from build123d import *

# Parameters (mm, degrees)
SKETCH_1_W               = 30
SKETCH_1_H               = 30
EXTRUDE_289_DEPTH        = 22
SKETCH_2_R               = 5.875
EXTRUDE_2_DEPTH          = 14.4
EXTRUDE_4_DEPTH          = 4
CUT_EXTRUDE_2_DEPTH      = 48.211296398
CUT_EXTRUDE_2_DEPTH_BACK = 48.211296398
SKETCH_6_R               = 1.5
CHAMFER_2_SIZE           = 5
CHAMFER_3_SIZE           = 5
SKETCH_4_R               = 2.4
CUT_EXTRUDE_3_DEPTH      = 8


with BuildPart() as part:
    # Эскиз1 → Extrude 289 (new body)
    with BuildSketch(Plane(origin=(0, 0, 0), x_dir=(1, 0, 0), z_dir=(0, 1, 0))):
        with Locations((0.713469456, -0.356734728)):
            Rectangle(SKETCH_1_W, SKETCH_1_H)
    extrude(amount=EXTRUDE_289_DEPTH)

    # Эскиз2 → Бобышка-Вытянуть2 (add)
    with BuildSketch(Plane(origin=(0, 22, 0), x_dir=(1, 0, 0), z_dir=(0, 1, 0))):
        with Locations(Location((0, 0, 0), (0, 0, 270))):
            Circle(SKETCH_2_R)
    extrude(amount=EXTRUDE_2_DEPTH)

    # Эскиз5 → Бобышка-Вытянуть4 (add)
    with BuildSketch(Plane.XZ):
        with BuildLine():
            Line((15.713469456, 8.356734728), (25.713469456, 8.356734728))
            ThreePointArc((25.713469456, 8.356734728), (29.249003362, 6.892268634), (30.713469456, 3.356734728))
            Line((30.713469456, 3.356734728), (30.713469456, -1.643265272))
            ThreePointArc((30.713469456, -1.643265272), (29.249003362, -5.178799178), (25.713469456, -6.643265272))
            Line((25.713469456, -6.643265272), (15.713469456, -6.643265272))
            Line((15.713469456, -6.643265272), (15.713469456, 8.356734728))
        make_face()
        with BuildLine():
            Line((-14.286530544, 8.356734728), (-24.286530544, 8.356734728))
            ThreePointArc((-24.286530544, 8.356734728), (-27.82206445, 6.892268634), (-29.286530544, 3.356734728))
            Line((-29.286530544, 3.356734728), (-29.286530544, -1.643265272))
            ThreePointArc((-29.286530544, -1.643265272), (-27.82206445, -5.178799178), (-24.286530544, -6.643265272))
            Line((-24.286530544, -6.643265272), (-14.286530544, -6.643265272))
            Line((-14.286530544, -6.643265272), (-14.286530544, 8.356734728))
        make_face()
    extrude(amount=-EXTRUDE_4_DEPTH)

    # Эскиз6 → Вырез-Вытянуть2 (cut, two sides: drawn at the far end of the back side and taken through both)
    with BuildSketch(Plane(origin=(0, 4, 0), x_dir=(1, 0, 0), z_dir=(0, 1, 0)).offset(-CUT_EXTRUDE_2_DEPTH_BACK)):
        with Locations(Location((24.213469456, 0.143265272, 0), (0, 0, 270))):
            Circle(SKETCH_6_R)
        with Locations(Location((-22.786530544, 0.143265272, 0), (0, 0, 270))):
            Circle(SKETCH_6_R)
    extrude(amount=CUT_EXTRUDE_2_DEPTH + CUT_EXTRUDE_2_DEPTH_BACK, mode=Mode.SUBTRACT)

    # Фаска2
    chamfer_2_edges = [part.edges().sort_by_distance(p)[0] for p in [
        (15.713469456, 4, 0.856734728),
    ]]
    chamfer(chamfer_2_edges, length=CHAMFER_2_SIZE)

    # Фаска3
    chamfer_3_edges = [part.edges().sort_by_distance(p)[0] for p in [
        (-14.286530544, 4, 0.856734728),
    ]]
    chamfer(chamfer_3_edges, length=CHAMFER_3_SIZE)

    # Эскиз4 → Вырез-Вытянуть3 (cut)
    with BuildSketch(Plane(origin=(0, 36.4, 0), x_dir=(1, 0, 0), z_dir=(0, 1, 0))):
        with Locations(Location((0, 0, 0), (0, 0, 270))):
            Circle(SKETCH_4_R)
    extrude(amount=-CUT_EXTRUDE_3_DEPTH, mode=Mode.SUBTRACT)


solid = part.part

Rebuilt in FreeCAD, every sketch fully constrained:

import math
import FreeCAD as App
import Part
import Sketcher
from FreeCAD import Vector


def edges_at(feature, points):
    """Names of the edges that pass closest to the given points."""
    edges = feature.Shape.Edges
    near = lambda p: min(range(len(edges)), key=lambda i: edges[i].distToShape(Part.Vertex(*p))[0])
    return sorted({f"Edge{near(p) + 1}" for p in points})

doc = App.newDocument("Part")
body = doc.addObject("PartDesign::Body", "Body")

sketch1 = body.newObject("Sketcher::SketchObject", "Sketch")
sketch1.AttachmentSupport = (doc.getObject("XZ_Plane"), [""])
sketch1.MapMode = "FlatFace"
sketch1.addGeometry(Part.LineSegment(Vector(-14, -15, 0), Vector(-14, 15, 0)), False)
sketch1.addGeometry(Part.LineSegment(Vector(-14, 15, 0), Vector(16, 15, 0)), False)
sketch1.addGeometry(Part.LineSegment(Vector(16, 15, 0), Vector(16, -15, 0)), False)
sketch1.addGeometry(Part.LineSegment(Vector(16, -15, 0), Vector(-14, -15, 0)), False)
sketch1.addConstraint(Sketcher.Constraint("Coincident", 0, 2, 1, 1))
sketch1.addConstraint(Sketcher.Constraint("Coincident", 1, 2, 2, 1))
sketch1.addConstraint(Sketcher.Constraint("Coincident", 2, 2, 3, 1))
sketch1.addConstraint(Sketcher.Constraint("Coincident", 3, 2, 0, 1))
sketch1.addConstraint(Sketcher.Constraint("Vertical", 0))
sketch1.addConstraint(Sketcher.Constraint("Horizontal", 1))
sketch1.addConstraint(Sketcher.Constraint("Vertical", 2))
sketch1.addConstraint(Sketcher.Constraint("Horizontal", 3))
sketch1.addConstraint(Sketcher.Constraint("Equal", 3, 0))
sketch1.addConstraint(Sketcher.Constraint("DistanceX", 1, 1, 1, 2, 30.0))
sketch1.addConstraint(Sketcher.Constraint("DistanceX", 0, 2, -1, 1, 14.286531))
sketch1.addConstraint(Sketcher.Constraint("DistanceY", -1, 1, 0, 2, 15.356735))
pad1 = body.newObject("PartDesign::Pad", "Pad")
pad1.Profile = sketch1
pad1.Length = 22
pad1.Reversed = True

sketch2 = body.newObject("Sketcher::SketchObject", "Sketch001")
sketch2.AttachmentSupport = (doc.getObject("XZ_Plane"), [""])
sketch2.MapMode = "FlatFace"
sketch2.AttachmentOffset = App.Placement(Vector(0, 0, -22), App.Rotation())
sketch2.addGeometry(Part.Circle(Vector(0, 0, 0), Vector(0, 0, 1), 6), False)
sketch2.addConstraint(Sketcher.Constraint("Coincident", 0, 3, -1, 1))
sketch2.addConstraint(Sketcher.Constraint("Diameter", 0, 11.75))
pad2 = body.newObject("PartDesign::Pad", "Pad001")
pad2.Profile = sketch2
pad2.Length = 14.4
pad2.Reversed = True

sketch3 = body.newObject("Sketcher::SketchObject", "Sketch002")
sketch3.AttachmentSupport = (doc.getObject("XZ_Plane"), [""])
sketch3.MapMode = "FlatFace"
sketch3.addGeometry(Part.LineSegment(Vector(26, 8, 0), Vector(16, 8, 0)), False)
sketch3.addGeometry(Part.LineSegment(Vector(16, 8, 0), Vector(16, -7, 0)), False)
sketch3.addGeometry(Part.LineSegment(Vector(16, -7, 0), Vector(26, -7, 0)), False)
sketch3.addGeometry(Part.ArcOfCircle(Part.Circle(Vector(26, -2, 0), Vector(0, 0, 1), 5), math.radians(-90), math.radians(0)), False)
sketch3.addGeometry(Part.LineSegment(Vector(31, -2, 0), Vector(31, 3, 0)), False)
sketch3.addGeometry(Part.ArcOfCircle(Part.Circle(Vector(26, 3, 0), Vector(0, 0, 1), 5), math.radians(0), math.radians(90)), False)
sketch3.addGeometry(Part.LineSegment(Vector(-14, 8, 0), Vector(-24, 8, 0)), False)
sketch3.addGeometry(Part.ArcOfCircle(Part.Circle(Vector(-24, 3, 0), Vector(0, 0, 1), 5), math.radians(90), math.radians(180)), False)
sketch3.addGeometry(Part.LineSegment(Vector(-29, 3, 0), Vector(-29, -2, 0)), False)
sketch3.addGeometry(Part.ArcOfCircle(Part.Circle(Vector(-24, -2, 0), Vector(0, 0, 1), 5), math.radians(180), math.radians(270)), False)
sketch3.addGeometry(Part.LineSegment(Vector(-24, -7, 0), Vector(-14, -7, 0)), False)
sketch3.addGeometry(Part.LineSegment(Vector(-14, -7, 0), Vector(-14, 8, 0)), False)
sketch3.addConstraint(Sketcher.Constraint("Coincident", 0, 2, 1, 1))
sketch3.addConstraint(Sketcher.Constraint("Coincident", 1, 2, 2, 1))
sketch3.addConstraint(Sketcher.Constraint("Tangent", 2, 2, 3, 1))
sketch3.addConstraint(Sketcher.Constraint("Tangent", 3, 2, 4, 1))
sketch3.addConstraint(Sketcher.Constraint("Tangent", 4, 2, 5, 1))
sketch3.addConstraint(Sketcher.Constraint("Tangent", 5, 2, 0, 1))
sketch3.addConstraint(Sketcher.Constraint("Tangent", 6, 2, 7, 1))
sketch3.addConstraint(Sketcher.Constraint("Tangent", 7, 2, 8, 1))
sketch3.addConstraint(Sketcher.Constraint("Tangent", 8, 2, 9, 1))
sketch3.addConstraint(Sketcher.Constraint("Tangent", 9, 2, 10, 1))
sketch3.addConstraint(Sketcher.Constraint("Coincident", 10, 2, 11, 1))
sketch3.addConstraint(Sketcher.Constraint("Coincident", 11, 2, 6, 1))
sketch3.addConstraint(Sketcher.Constraint("Horizontal", 0))
sketch3.addConstraint(Sketcher.Constraint("Vertical", 1))
sketch3.addConstraint(Sketcher.Constraint("Horizontal", 2))
sketch3.addConstraint(Sketcher.Constraint("Vertical", 4))
sketch3.addConstraint(Sketcher.Constraint("Horizontal", 6))
sketch3.addConstraint(Sketcher.Constraint("Vertical", 8))
sketch3.addConstraint(Sketcher.Constraint("Horizontal", 10))
sketch3.addConstraint(Sketcher.Constraint("Vertical", 11))
sketch3.addConstraint(Sketcher.Constraint("Equal", 3, 5))
sketch3.addConstraint(Sketcher.Constraint("Equal", 5, 7))
sketch3.addConstraint(Sketcher.Constraint("Equal", 7, 9))
sketch3.addConstraint(Sketcher.Constraint("Horizontal", 5, 3, 7, 3))
sketch3.addConstraint(Sketcher.Constraint("Horizontal", 3, 3, 9, 3))
sketch3.addConstraint(Sketcher.Constraint("Equal", 2, 6))
sketch3.addConstraint(Sketcher.Constraint("Radius", 3, 5.0))
sketch3.addConstraint(Sketcher.Constraint("DistanceX", 0, 2, 0, 1, 10.0))
sketch3.addConstraint(Sketcher.Constraint("DistanceY", 1, 2, 1, 1, 15.0))
sketch3.addConstraint(Sketcher.Constraint("DistanceX", 7, 3, 5, 3, 50.0))
sketch3.addConstraint(Sketcher.Constraint("DistanceX", -1, 1, 3, 3, 25.713469))
sketch3.addConstraint(Sketcher.Constraint("DistanceY", 3, 3, -1, 1, 1.643265))
pad3 = body.newObject("PartDesign::Pad", "Pad002")
pad3.Profile = sketch3
pad3.Length = 4
pad3.Reversed = True

sketch4 = body.newObject("Sketcher::SketchObject", "Sketch003")
sketch4.AttachmentSupport = (doc.getObject("XZ_Plane"), [""])
sketch4.MapMode = "FlatFace"
sketch4.AttachmentOffset = App.Placement(Vector(0, 0, -4), App.Rotation())
sketch4.addGeometry(Part.Circle(Vector(24.2, -0.1, 0), Vector(0, 0, 1), 1.5), False)
sketch4.addGeometry(Part.Circle(Vector(-22.8, -0.1, 0), Vector(0, 0, 1), 1.5), False)
sketch4.addConstraint(Sketcher.Constraint("Equal", 0, 1))
sketch4.addConstraint(Sketcher.Constraint("Horizontal", 0, 3, 1, 3))
sketch4.addConstraint(Sketcher.Constraint("Diameter", 0, 3.0))
sketch4.addConstraint(Sketcher.Constraint("DistanceX", 1, 3, 0, 3, 47.0))
sketch4.addConstraint(Sketcher.Constraint("DistanceX", -1, 1, 0, 3, 24.213469))
sketch4.addConstraint(Sketcher.Constraint("DistanceY", 0, 3, -1, 1, 0.143265))
pocket1 = body.newObject("PartDesign::Pocket", "Pocket")
pocket1.Profile = sketch4
pocket1.Type = "ThroughAll"
pocket1.Midplane = True
doc.recompute()

chamfer = body.newObject("PartDesign::Chamfer", "Chamfer")
chamfer.Base = (pocket1, edges_at(pocket1, [(15.713, 4, 0.857)]))
chamfer.Size = 5
doc.recompute()

chamfer2 = body.newObject("PartDesign::Chamfer", "Chamfer001")
chamfer2.Base = (chamfer, edges_at(chamfer, [(-14.287, 4, 0.857)]))
chamfer2.Size = 5

sketch5 = body.newObject("Sketcher::SketchObject", "Sketch004")
sketch5.AttachmentSupport = (doc.getObject("XZ_Plane"), [""])
sketch5.MapMode = "FlatFace"
sketch5.AttachmentOffset = App.Placement(Vector(0, 0, -36.4), App.Rotation())
sketch5.addGeometry(Part.Circle(Vector(0, 0, 0), Vector(0, 0, 1), 2.4), False)
sketch5.addConstraint(Sketcher.Constraint("Coincident", 0, 3, -1, 1))
sketch5.addConstraint(Sketcher.Constraint("Diameter", 0, 4.8))
pocket2 = body.newObject("PartDesign::Pocket", "Pocket001")
pocket2.Profile = sketch5
pocket2.Length = 8
pocket2.Reversed = True

doc.recompute()
